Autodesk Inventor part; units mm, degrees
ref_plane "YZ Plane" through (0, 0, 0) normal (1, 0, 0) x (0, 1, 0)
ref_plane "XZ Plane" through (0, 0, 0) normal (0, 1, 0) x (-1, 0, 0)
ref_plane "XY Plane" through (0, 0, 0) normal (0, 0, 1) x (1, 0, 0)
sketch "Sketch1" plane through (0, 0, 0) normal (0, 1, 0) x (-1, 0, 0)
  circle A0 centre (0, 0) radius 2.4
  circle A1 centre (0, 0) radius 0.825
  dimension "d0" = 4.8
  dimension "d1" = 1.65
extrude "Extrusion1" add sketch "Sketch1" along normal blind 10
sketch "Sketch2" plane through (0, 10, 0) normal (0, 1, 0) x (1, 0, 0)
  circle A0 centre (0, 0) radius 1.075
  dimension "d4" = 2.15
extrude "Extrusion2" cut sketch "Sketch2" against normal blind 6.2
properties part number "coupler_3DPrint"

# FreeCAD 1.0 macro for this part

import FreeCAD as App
import Part
import Sketcher

doc = App.newDocument("Part")
body = doc.addObject("PartDesign::Body", "Body")

sketch1 = body.newObject("Sketcher::SketchObject", "Sketch")
sketch1.AttachmentSupport = (doc.getObject("XZ_Plane"), [""])
sketch1.MapMode = "FlatFace"
sketch1.addGeometry([
    Part.Circle(App.Vector(0, 0, 0), App.Vector(0, 0, 1), 2.4),
    Part.Circle(App.Vector(0, 0, 0), App.Vector(0, 0, 1), 0.8),
], False)
sketch1.addConstraint([
    Sketcher.Constraint("Coincident", 0, 3, -1, 1),
    Sketcher.Constraint("Coincident", 1, 3, -1, 1),
    Sketcher.Constraint("Diameter", 0, 4.8),
    Sketcher.Constraint("Diameter", 1, 1.65),
])
pad1 = body.newObject("PartDesign::Pad", "Pad")
pad1.Profile = sketch1
pad1.Length = 10
pad1.Reversed = True

sketch2 = body.newObject("Sketcher::SketchObject", "Sketch001")
sketch2.AttachmentSupport = (doc.getObject("XZ_Plane"), [""])
sketch2.MapMode = "FlatFace"
sketch2.AttachmentOffset = App.Placement(App.Vector(0, 0, -10), App.Rotation())
sketch2.addGeometry(Part.Circle(App.Vector(0, 0, 0), App.Vector(0, 0, 1), 1.1), False)
sketch2.addConstraint([
    Sketcher.Constraint("Coincident", 0, 3, -1, 1),
    Sketcher.Constraint("Diameter", 0, 2.15),
])
pocket1 = body.newObject("PartDesign::Pocket", "Pocket")
pocket1.Profile = sketch2
pocket1.Length = 6.2
pocket1.Reversed = True

doc.recompute()
